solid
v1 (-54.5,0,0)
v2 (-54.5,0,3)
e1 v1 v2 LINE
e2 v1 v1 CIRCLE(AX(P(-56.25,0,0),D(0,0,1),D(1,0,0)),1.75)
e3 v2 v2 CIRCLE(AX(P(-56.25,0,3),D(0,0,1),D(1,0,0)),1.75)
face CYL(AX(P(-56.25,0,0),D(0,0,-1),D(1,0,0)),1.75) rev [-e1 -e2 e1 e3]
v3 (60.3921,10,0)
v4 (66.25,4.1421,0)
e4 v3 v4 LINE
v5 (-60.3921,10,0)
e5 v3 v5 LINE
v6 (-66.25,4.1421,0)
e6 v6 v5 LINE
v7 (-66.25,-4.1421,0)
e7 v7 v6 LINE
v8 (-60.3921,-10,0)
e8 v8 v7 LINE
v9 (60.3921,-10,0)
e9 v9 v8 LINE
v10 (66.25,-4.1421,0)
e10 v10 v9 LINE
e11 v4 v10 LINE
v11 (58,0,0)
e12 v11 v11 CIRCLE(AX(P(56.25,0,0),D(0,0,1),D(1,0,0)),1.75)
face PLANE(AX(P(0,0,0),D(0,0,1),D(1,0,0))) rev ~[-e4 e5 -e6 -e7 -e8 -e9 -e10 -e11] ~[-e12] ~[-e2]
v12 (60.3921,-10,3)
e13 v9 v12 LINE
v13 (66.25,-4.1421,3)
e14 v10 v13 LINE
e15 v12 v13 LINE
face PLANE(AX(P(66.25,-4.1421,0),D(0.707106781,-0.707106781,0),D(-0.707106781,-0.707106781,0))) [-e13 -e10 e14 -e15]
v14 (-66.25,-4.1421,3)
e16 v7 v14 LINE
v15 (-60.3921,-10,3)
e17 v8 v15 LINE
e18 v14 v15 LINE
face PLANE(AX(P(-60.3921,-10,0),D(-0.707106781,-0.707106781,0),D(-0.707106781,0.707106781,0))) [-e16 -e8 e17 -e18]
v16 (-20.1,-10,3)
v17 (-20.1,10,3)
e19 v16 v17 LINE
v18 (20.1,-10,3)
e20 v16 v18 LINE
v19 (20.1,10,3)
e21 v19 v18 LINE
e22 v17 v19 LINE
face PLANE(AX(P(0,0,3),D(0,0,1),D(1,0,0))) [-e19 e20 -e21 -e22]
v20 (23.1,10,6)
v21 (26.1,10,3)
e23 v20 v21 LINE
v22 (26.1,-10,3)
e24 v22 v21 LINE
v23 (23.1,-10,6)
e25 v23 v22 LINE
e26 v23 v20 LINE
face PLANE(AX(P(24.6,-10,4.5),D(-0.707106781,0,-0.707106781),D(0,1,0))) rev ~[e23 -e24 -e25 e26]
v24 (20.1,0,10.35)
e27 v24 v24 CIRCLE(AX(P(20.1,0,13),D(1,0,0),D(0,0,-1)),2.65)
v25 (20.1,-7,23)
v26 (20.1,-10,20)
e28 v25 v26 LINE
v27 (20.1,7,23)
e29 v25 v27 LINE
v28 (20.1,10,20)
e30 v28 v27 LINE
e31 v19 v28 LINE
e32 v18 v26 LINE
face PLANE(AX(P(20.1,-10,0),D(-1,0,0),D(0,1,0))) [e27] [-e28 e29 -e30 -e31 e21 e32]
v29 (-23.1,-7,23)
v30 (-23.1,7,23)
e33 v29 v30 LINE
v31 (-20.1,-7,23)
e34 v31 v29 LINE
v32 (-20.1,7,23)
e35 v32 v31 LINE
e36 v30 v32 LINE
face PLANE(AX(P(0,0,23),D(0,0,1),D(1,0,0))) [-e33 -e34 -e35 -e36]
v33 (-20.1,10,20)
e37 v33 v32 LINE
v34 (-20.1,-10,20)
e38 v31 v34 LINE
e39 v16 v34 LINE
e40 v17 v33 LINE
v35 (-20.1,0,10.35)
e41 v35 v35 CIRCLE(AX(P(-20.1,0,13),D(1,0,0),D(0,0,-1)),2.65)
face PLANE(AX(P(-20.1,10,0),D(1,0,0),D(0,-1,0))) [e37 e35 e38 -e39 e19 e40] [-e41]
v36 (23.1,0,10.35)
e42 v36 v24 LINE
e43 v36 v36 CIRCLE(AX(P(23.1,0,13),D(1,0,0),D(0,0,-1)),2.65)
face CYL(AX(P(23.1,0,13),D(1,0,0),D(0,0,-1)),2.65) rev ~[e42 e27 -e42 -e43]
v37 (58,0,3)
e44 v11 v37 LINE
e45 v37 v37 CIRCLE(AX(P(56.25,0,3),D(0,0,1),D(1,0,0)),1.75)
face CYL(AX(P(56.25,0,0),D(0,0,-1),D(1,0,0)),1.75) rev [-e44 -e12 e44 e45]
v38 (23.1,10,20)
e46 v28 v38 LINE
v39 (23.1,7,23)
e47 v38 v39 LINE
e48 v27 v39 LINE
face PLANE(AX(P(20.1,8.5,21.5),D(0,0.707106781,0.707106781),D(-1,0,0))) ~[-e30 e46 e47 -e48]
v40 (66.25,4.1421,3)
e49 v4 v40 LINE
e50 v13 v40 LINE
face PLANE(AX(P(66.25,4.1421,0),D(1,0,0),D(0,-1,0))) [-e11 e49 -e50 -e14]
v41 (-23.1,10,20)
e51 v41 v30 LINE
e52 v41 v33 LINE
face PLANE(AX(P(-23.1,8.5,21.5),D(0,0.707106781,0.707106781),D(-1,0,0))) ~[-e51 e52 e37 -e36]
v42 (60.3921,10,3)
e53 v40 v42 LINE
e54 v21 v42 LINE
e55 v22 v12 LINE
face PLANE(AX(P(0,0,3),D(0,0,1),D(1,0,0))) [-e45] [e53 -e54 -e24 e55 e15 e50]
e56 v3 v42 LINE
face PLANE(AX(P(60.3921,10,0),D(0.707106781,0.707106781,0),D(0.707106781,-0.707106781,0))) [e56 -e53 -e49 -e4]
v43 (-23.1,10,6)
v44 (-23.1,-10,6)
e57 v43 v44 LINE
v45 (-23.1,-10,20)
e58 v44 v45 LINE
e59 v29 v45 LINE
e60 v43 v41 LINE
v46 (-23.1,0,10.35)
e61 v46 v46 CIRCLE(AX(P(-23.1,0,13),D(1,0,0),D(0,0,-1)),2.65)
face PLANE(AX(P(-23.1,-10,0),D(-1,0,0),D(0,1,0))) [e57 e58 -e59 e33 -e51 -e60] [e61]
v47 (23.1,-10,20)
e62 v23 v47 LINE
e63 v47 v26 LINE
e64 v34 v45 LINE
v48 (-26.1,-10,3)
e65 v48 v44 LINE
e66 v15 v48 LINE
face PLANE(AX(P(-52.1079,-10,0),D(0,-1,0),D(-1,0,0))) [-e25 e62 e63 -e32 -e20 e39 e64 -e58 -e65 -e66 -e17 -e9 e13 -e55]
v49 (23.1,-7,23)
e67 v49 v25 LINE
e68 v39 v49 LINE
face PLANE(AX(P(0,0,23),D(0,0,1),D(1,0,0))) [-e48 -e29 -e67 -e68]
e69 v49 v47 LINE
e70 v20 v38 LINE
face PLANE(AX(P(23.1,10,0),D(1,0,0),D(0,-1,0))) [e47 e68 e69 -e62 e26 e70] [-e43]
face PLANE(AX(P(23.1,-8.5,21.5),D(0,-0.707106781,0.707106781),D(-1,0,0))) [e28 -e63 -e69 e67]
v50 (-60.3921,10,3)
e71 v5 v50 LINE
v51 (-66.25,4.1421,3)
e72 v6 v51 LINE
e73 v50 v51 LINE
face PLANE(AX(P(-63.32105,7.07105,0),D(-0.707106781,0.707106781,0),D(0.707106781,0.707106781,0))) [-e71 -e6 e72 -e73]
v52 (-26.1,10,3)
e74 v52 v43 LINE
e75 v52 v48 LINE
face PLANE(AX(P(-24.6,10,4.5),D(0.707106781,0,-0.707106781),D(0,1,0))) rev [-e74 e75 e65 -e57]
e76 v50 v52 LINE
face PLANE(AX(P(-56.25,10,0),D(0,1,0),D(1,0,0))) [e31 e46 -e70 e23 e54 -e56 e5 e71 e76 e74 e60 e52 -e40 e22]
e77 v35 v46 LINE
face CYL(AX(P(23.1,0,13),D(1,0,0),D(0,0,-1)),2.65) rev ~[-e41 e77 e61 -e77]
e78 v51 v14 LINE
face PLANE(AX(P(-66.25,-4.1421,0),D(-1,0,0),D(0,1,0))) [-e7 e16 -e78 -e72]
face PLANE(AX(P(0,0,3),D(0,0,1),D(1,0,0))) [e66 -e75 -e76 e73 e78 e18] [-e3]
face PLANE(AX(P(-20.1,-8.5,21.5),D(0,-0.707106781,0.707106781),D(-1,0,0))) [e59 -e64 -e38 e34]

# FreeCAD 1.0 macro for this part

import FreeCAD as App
import Part
import Sketcher
from FreeCAD import Vector
Q = App.Units.Quantity


def edges_at(feature, points):
    """Names of the edges that pass closest to the given points."""
    edges = feature.Shape.Edges
    near = lambda p: min(range(len(edges)), key=lambda i: edges[i].distToShape(Part.Vertex(*p))[0])
    return sorted({f"Edge{near(p) + 1}" for p in points})


def add_polygon(sketch, points):
    """Adds a closed chain of lines whose ends are joined by coincident constraints."""
    first, n = sketch.GeometryCount, len(points)
    for a, b in zip(points, points[1:] + points[:1]):
        sketch.addGeometry(Part.LineSegment(App.Vector(*a, 0), App.Vector(*b, 0)), False)
    for i in range(n):
        sketch.addConstraint(Sketcher.Constraint("Coincident", first + i, 2, first + (i + 1) % n, 1))

doc = App.newDocument("Part")
body = doc.addObject("PartDesign::Body", "Body")

sketch1 = doc.addObject("Sketcher::SketchObject", "Sketch")
body.addObject(sketch1)
sketch1.AttachmentSupport = (doc.XY_Plane, [""])
sketch1.MapMode = "FlatFace"
add_polygon(sketch1, [(-60.4, 10), (-66.2, 4.1), (-66.2, -4.1), (-60.4, -10), (60.4, -10), (66.2, -4.1), (66.2, 4.1), (60.4, 10)])
sketch1.addGeometry(Part.Circle(Vector(-56.2, 0, 0), Vector(0, 0, 1), 1.8), False)
sketch1.addGeometry(Part.Circle(Vector(56.2, 0, 0), Vector(0, 0, 1), 1.8), False)
sketch1.addConstraint(Sketcher.Constraint("Vertical", 1))
sketch1.addConstraint(Sketcher.Constraint("Horizontal", 3))
sketch1.addConstraint(Sketcher.Constraint("Vertical", 5))
sketch1.addConstraint(Sketcher.Constraint("Horizontal", 7))
sketch1.addConstraint(Sketcher.Constraint("Equal", 8, 9))
sketch1.addConstraint(Sketcher.Constraint("Symmetric", 8, 3, 9, 3, -1, 1))
sketch1.addConstraint(Sketcher.Constraint("Symmetric", 0, 2, 4, 2, -1, 1))
sketch1.addConstraint(Sketcher.Constraint("Symmetric", 2, 2, 6, 2, -1, 1))
sketch1.addConstraint(Sketcher.Constraint("PointOnObject", 8, 3, -1))
sketch1.addConstraint(Sketcher.Constraint("Perpendicular", 0, 2))
sketch1.addConstraint(Sketcher.Constraint("Perpendicular", 2, 4))
sketch1.addConstraint(Sketcher.Constraint("Perpendicular", 4, 6))
sketch1.addConstraint(Sketcher.Constraint("Horizontal", 1, 2, 4, 2))
sketch1.addConstraint(Sketcher.Constraint("Vertical", 3, 2, 6, 2))
sketch1.addConstraint(Sketcher.Constraint("Diameter", 8, Q("3.5 mm")))
sketch1.addConstraint(Sketcher.Constraint("DistanceY", 2, 2, -1, 1, Q("10 mm")))
sketch1.addConstraint(Sketcher.Constraint("DistanceX", 0, 2, 8, 3, Q("10 mm")))
sketch1.addConstraint(Sketcher.Constraint("DistanceX", 8, 3, 9, 3, Q("112.5 mm")))
sketch1.addConstraint(Sketcher.Constraint("DistanceX", 3, 1, 3, 2, Q("120.7842 mm")))
pad1 = doc.addObject("PartDesign::Pad", "Pad")
body.addObject(pad1)
pad1.Profile = sketch1
pad1.Length = 3

sketch2 = doc.addObject("Sketcher::SketchObject", "Sketch001")
body.addObject(sketch2)
sketch2.AttachmentSupport = (doc.XY_Plane, [""])
sketch2.MapMode = "FlatFace"
add_polygon(sketch2, [(-20.1, 10), (-23.1, 10), (-23.1, -10), (-20.1, -10)])
add_polygon(sketch2, [(23.1, 10), (20.1, 10), (20.1, -10), (23.1, -10)])
sketch2.addConstraint(Sketcher.Constraint("Horizontal", 0))
sketch2.addConstraint(Sketcher.Constraint("Vertical", 1))
sketch2.addConstraint(Sketcher.Constraint("Horizontal", 2))
sketch2.addConstraint(Sketcher.Constraint("Vertical", 3))
sketch2.addConstraint(Sketcher.Constraint("Horizontal", 4))
sketch2.addConstraint(Sketcher.Constraint("Vertical", 5))
sketch2.addConstraint(Sketcher.Constraint("Horizontal", 6))
sketch2.addConstraint(Sketcher.Constraint("Vertical", 7))
sketch2.addConstraint(Sketcher.Constraint("Symmetric", 2, 2, 4, 2, -1, 1))
sketch2.addConstraint(Sketcher.Constraint("Symmetric", 0, 2, 6, 2, -1, 1))
sketch2.addConstraint(Sketcher.Constraint("Horizontal", 3, 2, 4, 2))
sketch2.addConstraint(Sketcher.Constraint("DistanceX", 0, 2, 0, 1, Q("3 mm")))
sketch2.addConstraint(Sketcher.Constraint("DistanceY", -1, 1, 0, 2, Q("10 mm")))
sketch2.addConstraint(Sketcher.Constraint("DistanceX", 3, 2, 4, 2, Q("40.2 mm")))
pad2 = doc.addObject("PartDesign::Pad", "Pad001")
body.addObject(pad2)
pad2.Profile = sketch2
pad2.Length = 23

sketch3 = doc.addObject("Sketcher::SketchObject", "Sketch002")
body.addObject(sketch3)
sketch3.AttachmentSupport = (doc.YZ_Plane, [""])
sketch3.MapMode = "FlatFace"
sketch3.AttachmentOffset = App.Placement(Vector(0, 0, 23.1), App.Rotation())
sketch3.addGeometry(Part.Circle(Vector(0, 13, 0), Vector(0, 0, 1), 2.6), False)
sketch3.addConstraint(Sketcher.Constraint("PointOnObject", 0, 3, -2))
sketch3.addConstraint(Sketcher.Constraint("Diameter", 0, Q("5.3 mm")))
sketch3.addConstraint(Sketcher.Constraint("DistanceY", -1, 1, 0, 3, Q("13 mm")))
pocket1 = doc.addObject("PartDesign::Pocket", "Pocket")
body.addObject(pocket1)
pocket1.Profile = sketch3
pocket1.Type = "ThroughAll"
doc.recompute()

chamfer = doc.addObject("PartDesign::Chamfer", "Chamfer")
body.addObject(chamfer)
chamfer.Base = (pocket1, edges_at(pocket1, [
    (23.1, 0, 3),
    (-23.1, 0, 3),
    (21.6, 10, 23),
    (21.6, -10, 23),
    (-21.6, -10, 23),
    (-21.6, 10, 23),
]))
chamfer.Size = 3

doc.recompute()
